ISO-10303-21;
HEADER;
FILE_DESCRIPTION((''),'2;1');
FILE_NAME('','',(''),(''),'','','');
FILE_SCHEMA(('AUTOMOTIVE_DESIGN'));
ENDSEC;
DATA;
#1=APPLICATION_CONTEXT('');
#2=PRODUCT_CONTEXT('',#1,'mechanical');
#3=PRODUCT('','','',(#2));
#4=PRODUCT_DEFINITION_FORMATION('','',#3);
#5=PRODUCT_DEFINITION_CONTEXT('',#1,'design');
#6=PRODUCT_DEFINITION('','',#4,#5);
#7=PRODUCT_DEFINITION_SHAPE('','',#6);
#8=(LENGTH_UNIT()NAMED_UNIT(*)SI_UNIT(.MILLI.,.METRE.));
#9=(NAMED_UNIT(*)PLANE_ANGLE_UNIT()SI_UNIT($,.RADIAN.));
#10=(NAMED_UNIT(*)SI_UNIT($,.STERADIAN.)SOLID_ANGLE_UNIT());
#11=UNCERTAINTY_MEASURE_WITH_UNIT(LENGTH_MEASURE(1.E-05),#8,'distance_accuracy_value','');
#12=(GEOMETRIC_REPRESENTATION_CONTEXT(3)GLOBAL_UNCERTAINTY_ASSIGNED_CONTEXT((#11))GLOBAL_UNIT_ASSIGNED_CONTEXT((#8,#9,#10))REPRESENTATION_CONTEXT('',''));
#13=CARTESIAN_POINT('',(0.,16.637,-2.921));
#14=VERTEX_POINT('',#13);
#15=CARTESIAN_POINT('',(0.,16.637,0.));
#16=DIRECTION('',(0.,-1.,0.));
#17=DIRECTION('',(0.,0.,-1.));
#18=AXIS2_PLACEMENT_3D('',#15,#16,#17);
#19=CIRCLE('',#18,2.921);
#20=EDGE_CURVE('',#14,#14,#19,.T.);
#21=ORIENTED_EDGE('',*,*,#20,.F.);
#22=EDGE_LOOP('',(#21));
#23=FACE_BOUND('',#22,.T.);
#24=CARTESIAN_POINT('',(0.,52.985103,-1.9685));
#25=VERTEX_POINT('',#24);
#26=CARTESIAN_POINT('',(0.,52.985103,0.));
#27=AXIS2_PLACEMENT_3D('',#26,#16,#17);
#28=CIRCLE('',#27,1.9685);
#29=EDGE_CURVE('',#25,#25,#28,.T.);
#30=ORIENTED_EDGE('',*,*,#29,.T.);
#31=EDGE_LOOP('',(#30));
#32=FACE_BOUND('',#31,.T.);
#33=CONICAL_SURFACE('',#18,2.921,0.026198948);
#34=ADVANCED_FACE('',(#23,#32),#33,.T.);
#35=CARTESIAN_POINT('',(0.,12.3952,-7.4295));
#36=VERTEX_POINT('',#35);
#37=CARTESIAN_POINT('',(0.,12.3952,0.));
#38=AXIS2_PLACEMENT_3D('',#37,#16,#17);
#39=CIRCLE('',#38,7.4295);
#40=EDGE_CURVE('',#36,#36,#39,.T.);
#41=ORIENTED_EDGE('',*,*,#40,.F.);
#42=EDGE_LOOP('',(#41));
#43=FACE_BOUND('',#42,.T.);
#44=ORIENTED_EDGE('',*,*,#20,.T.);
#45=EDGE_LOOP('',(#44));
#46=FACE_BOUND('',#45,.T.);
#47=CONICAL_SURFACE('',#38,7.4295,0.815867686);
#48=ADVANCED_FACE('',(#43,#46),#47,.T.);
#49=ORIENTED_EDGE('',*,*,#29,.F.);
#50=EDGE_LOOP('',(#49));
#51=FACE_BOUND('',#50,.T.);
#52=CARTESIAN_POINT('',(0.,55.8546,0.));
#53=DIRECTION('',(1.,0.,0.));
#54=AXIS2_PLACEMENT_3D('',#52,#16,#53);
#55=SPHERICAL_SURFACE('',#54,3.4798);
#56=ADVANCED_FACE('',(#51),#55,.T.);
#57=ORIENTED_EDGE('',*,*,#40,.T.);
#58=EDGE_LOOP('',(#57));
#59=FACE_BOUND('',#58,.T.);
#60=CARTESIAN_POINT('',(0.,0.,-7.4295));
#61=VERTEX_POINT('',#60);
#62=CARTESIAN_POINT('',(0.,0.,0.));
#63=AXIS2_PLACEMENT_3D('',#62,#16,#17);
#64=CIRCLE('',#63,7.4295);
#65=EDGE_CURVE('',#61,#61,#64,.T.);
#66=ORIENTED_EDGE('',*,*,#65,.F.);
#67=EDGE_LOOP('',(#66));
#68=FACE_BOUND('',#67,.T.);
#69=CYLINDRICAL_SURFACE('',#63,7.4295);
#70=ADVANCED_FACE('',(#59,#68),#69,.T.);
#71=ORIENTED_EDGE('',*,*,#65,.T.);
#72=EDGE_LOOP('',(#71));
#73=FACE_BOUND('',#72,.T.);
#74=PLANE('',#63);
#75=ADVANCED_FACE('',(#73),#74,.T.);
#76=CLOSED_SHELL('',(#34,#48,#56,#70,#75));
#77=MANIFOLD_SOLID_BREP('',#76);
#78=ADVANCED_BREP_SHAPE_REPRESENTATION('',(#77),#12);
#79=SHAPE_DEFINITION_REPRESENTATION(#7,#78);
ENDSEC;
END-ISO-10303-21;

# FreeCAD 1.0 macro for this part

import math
import FreeCAD as App
import Part
import Sketcher

V = App.Vector
Q = App.Units.Quantity

doc = App.newDocument("Part")
params = doc.addObject("Spreadsheet::Sheet", "Params")
for row, (alias, value) in enumerate([
    ("sketch1_radius", "0.137 in"),
    ("sketch1_height", "0.488 in"),
    ("sketch1_height2", "2.336 in"),
    ("revolution_angle", "360 deg"),
], start=1):
    params.set(f"A{row}", alias)
    params.set(f"B{row}", "=" + value)
    params.setAlias(f"B{row}", alias)

body = doc.addObject("PartDesign::Body", "Body")

# Sketch on XY plane
sketch1 = body.newObject("Sketcher::SketchObject", "Sketch")
sketch1.AttachmentSupport = (doc.getObject("XY_Plane"), [""])
sketch1.MapMode = "FlatFace"
sketch1.addGeometry(Part.LineSegment(V(0, 0, 0), V(7.4, 0, 0)), False)
sketch1.addGeometry(Part.LineSegment(V(7.4, 0, 0), V(7.4, 12.4, 0)), False)
sketch1.addGeometry(Part.LineSegment(V(7.4, 12.4, 0), V(2.9, 16.6, 0)), False)
sketch1.addGeometry(Part.LineSegment(V(2.9, 16.6, 0), V(2, 53, 0)), False)
sketch1.addGeometry(Part.ArcOfCircle(Part.Circle(V(0, 55.9, 0), V(0, 0, 1), 3.5), math.radians(-56), math.radians(90)), False)
sketch1.addGeometry(Part.LineSegment(V(0, 59.3, 0), V(0, 0, 0)), False)
sketch1.addConstraint(Sketcher.Constraint("Coincident", 0, 2, 1, 1))
sketch1.addConstraint(Sketcher.Constraint("Coincident", 1, 2, 2, 1))
sketch1.addConstraint(Sketcher.Constraint("Coincident", 2, 2, 3, 1))
sketch1.addConstraint(Sketcher.Constraint("Coincident", 3, 2, 4, 1))
sketch1.addConstraint(Sketcher.Constraint("Coincident", 4, 2, 5, 1))
sketch1.addConstraint(Sketcher.Constraint("Coincident", 5, 2, 0, 1))
sketch1.addConstraint(Sketcher.Constraint("Horizontal", 0))
sketch1.addConstraint(Sketcher.Constraint("Vertical", 1))
sketch1.addConstraint(Sketcher.Constraint("Vertical", 5))
sketch1.addConstraint(Sketcher.Constraint("Coincident", 5, 2, -1, 1))
sketch1.addConstraint(Sketcher.Constraint("PointOnObject", 4, 3, -2))
sketch1.addConstraint(Sketcher.Constraint("Radius", 4, Q("0.137 in")))
sketch1.addConstraint(Sketcher.Constraint("DistanceY", 1, 1, 1, 2, Q("0.488 in")))
sketch1.addConstraint(Sketcher.Constraint("DistanceY", 5, 2, 5, 1, Q("2.336 in")))
sketch1.addConstraint(Sketcher.Constraint("DistanceX", 0, 1, 0, 2, Q("0.2925 in")))
sketch1.addConstraint(Sketcher.Constraint("DistanceX", -1, 1, 2, 2, Q("0.115 in")))
sketch1.addConstraint(Sketcher.Constraint("DistanceY", -1, 1, 2, 2, Q("0.655 in")))
sketch1.addConstraint(Sketcher.Constraint("DistanceX", 3, 2, 1, 2, Q("0.215 in")))
sketch1.setExpression("Constraints[11]", "Params.sketch1_radius")
sketch1.setExpression("Constraints[12]", "Params.sketch1_height")
sketch1.setExpression("Constraints[13]", "Params.sketch1_height2")
revolution = body.newObject("PartDesign::Revolution", "Revolution")
revolution.Profile = sketch1
revolution.ReferenceAxis = (sketch1, ["V_Axis"])
revolution.setExpression("Angle", "Params.revolution_angle")

doc.recompute()
